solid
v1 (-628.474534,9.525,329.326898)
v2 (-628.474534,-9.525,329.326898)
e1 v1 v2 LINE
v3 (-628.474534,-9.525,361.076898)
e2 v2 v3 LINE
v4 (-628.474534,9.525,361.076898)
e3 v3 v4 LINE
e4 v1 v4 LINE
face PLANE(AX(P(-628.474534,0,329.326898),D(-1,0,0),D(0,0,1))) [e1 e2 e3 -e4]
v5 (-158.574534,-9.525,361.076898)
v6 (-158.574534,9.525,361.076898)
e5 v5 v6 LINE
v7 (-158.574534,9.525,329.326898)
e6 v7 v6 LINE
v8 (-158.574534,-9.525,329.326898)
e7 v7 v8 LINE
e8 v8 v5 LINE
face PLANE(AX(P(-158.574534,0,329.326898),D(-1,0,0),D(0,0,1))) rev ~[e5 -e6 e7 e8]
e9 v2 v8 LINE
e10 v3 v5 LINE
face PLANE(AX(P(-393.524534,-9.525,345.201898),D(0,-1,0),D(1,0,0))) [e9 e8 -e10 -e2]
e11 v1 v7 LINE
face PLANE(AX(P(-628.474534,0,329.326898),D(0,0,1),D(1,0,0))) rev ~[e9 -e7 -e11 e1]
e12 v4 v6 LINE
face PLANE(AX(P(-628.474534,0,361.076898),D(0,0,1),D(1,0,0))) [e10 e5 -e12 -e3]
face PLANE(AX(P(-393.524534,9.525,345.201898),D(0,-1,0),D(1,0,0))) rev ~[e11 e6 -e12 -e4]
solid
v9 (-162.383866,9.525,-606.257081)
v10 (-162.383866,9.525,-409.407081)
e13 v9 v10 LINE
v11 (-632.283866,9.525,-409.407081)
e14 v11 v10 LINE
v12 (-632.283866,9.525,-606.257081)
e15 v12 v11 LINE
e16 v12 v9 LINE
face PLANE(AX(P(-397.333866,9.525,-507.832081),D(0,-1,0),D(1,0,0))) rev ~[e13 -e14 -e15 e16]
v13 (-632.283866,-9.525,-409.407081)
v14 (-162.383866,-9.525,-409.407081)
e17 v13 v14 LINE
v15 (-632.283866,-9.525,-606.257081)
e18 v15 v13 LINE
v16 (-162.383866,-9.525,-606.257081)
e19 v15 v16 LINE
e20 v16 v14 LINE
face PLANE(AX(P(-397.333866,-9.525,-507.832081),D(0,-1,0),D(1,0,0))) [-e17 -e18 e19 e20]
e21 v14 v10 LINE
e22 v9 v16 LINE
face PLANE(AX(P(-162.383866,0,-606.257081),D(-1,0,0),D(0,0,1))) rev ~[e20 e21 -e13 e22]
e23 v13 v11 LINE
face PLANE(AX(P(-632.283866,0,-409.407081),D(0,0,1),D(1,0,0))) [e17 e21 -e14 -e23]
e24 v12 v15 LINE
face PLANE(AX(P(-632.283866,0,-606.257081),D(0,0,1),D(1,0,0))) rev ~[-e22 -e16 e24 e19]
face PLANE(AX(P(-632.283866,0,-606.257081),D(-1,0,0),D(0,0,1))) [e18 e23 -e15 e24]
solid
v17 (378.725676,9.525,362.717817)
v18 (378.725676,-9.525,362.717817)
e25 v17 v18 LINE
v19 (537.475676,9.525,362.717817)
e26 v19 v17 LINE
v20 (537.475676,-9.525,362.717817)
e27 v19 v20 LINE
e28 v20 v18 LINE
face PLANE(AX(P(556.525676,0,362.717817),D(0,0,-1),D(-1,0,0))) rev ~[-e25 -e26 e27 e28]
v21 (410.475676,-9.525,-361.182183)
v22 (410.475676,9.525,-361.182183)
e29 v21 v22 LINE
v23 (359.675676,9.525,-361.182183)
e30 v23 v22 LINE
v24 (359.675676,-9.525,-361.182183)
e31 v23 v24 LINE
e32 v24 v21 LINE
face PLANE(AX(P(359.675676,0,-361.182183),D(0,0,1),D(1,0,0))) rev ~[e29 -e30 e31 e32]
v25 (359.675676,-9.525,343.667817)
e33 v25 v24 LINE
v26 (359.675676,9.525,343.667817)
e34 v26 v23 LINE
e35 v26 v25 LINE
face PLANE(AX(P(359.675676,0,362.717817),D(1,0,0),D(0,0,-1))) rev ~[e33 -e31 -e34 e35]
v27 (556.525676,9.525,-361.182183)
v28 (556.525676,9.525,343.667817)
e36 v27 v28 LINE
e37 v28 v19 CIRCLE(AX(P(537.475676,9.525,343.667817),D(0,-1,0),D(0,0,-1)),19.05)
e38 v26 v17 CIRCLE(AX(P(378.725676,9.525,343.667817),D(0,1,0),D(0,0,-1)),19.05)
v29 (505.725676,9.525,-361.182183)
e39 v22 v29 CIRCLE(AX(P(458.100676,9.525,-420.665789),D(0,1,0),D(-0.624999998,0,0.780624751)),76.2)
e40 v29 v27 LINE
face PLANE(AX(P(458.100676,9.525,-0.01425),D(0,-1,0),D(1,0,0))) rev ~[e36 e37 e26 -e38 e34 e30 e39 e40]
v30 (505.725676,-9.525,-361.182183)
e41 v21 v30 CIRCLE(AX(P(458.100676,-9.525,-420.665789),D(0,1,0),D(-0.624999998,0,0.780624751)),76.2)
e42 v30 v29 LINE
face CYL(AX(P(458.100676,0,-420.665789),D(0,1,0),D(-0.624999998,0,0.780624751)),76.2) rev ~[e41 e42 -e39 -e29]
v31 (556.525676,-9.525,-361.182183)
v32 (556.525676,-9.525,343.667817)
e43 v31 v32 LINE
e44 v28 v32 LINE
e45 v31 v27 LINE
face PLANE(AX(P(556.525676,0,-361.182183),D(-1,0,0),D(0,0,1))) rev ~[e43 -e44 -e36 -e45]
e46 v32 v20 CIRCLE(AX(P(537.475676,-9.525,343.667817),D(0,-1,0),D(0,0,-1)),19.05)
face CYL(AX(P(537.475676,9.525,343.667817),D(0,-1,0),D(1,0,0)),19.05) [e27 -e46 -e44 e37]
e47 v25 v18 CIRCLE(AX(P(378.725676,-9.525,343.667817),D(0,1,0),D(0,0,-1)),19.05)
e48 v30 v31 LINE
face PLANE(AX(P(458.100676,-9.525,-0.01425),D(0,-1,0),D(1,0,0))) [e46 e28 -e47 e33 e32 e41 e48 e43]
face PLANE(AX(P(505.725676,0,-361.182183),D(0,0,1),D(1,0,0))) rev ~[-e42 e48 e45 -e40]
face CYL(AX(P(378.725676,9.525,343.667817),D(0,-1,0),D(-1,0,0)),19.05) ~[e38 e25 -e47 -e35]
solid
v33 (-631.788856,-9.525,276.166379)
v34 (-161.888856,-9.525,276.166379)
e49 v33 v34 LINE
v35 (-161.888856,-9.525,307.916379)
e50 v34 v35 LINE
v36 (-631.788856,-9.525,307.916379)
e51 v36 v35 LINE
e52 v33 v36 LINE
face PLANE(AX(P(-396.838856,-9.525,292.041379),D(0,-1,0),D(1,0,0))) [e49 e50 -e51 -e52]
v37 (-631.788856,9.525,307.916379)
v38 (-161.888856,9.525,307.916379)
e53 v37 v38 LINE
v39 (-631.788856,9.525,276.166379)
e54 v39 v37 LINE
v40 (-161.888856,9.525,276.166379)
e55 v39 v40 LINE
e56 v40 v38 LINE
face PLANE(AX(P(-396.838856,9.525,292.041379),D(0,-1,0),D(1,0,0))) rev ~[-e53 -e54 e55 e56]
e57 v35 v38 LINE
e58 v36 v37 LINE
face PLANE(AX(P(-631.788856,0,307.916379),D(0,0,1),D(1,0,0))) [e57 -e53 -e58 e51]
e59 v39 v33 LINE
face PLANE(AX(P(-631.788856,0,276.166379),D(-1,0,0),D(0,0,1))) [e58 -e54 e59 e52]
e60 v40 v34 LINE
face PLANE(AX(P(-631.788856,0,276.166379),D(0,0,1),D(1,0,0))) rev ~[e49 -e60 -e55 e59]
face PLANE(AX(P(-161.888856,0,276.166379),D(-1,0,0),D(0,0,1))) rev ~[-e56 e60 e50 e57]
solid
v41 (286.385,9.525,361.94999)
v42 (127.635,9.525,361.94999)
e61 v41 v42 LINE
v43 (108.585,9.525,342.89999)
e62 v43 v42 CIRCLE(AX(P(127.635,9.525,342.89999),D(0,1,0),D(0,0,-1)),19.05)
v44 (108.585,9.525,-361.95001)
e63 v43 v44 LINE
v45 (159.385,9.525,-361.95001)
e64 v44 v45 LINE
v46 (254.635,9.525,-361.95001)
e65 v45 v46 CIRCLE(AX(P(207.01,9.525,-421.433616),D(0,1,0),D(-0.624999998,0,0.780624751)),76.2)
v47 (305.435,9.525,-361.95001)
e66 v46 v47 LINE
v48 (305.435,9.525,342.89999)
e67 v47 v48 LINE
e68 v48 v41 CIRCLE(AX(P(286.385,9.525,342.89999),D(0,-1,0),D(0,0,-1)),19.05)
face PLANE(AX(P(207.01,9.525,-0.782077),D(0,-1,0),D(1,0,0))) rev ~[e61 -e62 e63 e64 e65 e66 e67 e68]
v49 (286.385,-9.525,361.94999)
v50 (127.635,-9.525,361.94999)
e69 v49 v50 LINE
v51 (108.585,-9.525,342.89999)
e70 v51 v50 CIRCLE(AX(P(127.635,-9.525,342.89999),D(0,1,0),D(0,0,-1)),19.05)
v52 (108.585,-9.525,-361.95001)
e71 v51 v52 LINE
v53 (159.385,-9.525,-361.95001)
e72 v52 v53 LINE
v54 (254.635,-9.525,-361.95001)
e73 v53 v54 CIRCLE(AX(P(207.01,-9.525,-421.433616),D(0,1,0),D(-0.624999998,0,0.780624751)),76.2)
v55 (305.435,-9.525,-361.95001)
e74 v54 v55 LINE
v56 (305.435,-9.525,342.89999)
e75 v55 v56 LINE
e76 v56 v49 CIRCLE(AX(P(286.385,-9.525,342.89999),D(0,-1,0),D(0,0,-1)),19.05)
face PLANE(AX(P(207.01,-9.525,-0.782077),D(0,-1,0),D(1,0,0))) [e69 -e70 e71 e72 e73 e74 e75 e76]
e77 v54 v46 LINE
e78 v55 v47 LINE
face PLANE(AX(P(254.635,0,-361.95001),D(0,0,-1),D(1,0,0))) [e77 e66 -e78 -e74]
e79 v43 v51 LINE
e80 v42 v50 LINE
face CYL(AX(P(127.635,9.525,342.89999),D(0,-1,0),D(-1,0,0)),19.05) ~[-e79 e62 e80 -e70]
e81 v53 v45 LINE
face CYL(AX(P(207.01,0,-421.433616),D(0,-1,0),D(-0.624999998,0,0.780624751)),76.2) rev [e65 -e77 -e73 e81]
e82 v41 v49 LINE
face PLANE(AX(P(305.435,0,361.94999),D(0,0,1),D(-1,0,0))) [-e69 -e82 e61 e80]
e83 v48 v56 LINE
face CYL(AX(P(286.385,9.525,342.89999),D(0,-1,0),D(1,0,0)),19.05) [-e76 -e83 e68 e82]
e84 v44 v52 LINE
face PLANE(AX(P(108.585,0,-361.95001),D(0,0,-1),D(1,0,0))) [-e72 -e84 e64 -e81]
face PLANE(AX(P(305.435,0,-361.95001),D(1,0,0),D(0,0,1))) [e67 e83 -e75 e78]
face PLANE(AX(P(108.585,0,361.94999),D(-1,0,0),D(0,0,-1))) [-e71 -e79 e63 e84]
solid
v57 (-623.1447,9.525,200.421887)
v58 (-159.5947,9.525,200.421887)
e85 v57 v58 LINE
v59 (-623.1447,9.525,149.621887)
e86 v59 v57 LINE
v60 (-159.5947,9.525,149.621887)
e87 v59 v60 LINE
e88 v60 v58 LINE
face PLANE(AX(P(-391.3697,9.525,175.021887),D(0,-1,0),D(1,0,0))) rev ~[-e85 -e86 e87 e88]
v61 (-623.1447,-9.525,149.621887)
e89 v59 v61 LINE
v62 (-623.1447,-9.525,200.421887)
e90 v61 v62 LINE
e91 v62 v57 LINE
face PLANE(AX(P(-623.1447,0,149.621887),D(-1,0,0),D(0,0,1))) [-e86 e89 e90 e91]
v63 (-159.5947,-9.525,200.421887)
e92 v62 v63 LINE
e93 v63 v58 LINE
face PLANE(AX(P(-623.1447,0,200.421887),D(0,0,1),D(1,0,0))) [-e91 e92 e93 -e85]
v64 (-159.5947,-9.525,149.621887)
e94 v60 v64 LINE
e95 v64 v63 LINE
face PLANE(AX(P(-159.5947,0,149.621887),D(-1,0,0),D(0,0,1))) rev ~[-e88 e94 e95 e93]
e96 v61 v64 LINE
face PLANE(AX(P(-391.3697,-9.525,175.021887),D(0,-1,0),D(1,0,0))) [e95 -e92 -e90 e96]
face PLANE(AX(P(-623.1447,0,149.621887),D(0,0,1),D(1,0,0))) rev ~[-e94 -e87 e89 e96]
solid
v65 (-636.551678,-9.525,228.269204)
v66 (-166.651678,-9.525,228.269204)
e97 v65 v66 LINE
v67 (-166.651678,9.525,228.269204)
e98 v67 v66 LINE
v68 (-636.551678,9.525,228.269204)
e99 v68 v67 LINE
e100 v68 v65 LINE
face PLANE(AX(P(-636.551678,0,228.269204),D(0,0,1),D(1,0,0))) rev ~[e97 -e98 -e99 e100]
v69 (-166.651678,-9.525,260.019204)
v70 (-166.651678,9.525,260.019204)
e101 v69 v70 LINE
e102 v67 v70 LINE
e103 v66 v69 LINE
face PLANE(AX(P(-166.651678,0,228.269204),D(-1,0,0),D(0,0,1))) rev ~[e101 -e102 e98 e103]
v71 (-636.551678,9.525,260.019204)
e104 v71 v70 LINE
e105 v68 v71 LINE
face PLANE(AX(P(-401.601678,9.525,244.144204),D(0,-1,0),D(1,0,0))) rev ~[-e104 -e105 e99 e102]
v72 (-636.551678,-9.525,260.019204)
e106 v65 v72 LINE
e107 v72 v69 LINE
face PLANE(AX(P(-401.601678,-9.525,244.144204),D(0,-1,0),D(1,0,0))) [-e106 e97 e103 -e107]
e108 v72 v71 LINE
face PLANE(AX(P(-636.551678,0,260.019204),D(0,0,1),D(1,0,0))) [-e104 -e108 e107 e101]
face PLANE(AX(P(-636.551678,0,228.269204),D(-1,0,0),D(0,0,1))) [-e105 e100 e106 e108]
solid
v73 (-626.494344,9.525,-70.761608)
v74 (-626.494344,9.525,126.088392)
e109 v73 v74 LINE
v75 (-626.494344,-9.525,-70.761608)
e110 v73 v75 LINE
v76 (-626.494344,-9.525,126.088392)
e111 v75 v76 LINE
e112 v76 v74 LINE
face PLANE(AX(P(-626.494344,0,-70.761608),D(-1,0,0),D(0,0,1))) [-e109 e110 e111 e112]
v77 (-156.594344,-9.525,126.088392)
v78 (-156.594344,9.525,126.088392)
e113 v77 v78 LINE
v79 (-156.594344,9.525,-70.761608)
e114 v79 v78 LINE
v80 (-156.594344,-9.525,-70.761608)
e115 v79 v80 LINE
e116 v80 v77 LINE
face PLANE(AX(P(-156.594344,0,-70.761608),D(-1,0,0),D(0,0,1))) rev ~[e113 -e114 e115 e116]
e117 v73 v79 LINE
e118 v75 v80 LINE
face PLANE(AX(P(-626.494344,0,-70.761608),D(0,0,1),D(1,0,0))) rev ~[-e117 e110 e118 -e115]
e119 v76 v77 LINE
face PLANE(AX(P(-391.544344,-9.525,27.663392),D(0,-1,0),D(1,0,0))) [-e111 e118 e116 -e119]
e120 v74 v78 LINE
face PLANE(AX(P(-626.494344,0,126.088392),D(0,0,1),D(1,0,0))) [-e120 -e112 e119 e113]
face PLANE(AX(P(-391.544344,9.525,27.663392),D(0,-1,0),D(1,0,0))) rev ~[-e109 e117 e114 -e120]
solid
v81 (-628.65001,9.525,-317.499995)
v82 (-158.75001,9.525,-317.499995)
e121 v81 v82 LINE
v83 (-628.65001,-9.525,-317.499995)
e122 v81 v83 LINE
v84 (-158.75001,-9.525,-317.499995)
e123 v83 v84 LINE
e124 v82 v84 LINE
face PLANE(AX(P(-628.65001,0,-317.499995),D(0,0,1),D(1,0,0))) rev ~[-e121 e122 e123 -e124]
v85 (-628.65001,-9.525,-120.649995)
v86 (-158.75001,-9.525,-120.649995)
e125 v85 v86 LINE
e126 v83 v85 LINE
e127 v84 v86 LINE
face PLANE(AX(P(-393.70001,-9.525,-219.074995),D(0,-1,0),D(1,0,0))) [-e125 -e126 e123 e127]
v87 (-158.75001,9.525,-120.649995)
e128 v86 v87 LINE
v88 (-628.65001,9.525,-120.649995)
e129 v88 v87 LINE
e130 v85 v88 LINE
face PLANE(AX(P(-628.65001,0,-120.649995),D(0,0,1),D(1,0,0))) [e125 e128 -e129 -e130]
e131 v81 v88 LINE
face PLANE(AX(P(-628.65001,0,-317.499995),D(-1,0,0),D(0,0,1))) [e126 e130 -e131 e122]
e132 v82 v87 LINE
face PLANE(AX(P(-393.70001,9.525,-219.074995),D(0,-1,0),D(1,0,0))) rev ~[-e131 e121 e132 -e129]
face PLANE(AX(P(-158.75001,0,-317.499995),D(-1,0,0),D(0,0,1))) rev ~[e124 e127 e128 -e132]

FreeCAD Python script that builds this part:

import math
import FreeCAD as App
import Part
import Sketcher
from FreeCAD import Vector
Q = App.Units.Quantity


def edges_at(feature, points):
    """Names of the edges that pass closest to the given points."""
    edges = feature.Shape.Edges
    near = lambda p: min(range(len(edges)), key=lambda i: edges[i].distToShape(Part.Vertex(*p))[0])
    return sorted({f"Edge{near(p) + 1}" for p in points})


def add_polygon(sketch, points):
    """Adds a closed chain of lines whose ends are joined by coincident constraints."""
    first, n = sketch.GeometryCount, len(points)
    for a, b in zip(points, points[1:] + points[:1]):
        sketch.addGeometry(Part.LineSegment(App.Vector(*a, 0), App.Vector(*b, 0)), False)
    for i in range(n):
        sketch.addConstraint(Sketcher.Constraint("Coincident", first + i, 2, first + (i + 1) % n, 1))

doc = App.newDocument("Part")
body = doc.addObject("PartDesign::Body", "Body")
body.AllowCompound = True

# Sketch on XZ plane
sketch1 = doc.addObject("Sketcher::SketchObject", "Sketch")
body.addObject(sketch1)
sketch1.AttachmentSupport = (doc.XZ_Plane, [""])
sketch1.MapMode = "FlatFace"
sketch1.addGeometry(Part.LineSegment(Vector(557, -361, 0), Vector(557, 363, 0)), False)  # 0
sketch1.addGeometry(Part.LineSegment(Vector(557, 363, 0), Vector(360, 363, 0)), False)  # 1
sketch1.addGeometry(Part.LineSegment(Vector(360, 363, 0), Vector(360, -361, 0)), False)  # 2
sketch1.addGeometry(Part.LineSegment(Vector(360, -361, 0), Vector(410, -361, 0)), False)  # 3
sketch1.addGeometry(Part.ArcOfCircle(Part.Circle(Vector(458, -421, 0), Vector(0, 0, 1), 76), math.radians(51), math.radians(129)), False)  # 4
sketch1.addGeometry(Part.LineSegment(Vector(506, -361, 0), Vector(557, -361, 0)), False)  # 5
add_polygon(sketch1, [(-628, 361), (-628, 329), (-159, 329), (-159, 361)])  # lines 6-9
add_polygon(sketch1, [(-632, 308), (-632, 276), (-162, 276), (-162, 308)])  # lines 10-13
add_polygon(sketch1, [(-637, 260), (-637, 228), (-167, 228), (-167, 260)])  # lines 14-17
add_polygon(sketch1, [(-623, 200), (-623, 150), (-160, 150), (-160, 200)])  # lines 18-21
add_polygon(sketch1, [(-626, 126), (-626, -71), (-157, -71), (-157, 126)])  # lines 22-25
add_polygon(sketch1, [(-629, -121), (-629, -317), (-159, -317), (-159, -121)])  # lines 26-29
add_polygon(sketch1, [(-632, -409), (-632, -606), (-162, -606), (-162, -409)])  # lines 30-33
sketch1.addGeometry(Part.LineSegment(Vector(305, -362, 0), Vector(305, 362, 0)), False)  # 34
sketch1.addGeometry(Part.LineSegment(Vector(305, 362, 0), Vector(109, 362, 0)), False)  # 35
sketch1.addGeometry(Part.LineSegment(Vector(109, 362, 0), Vector(109, -362, 0)), False)  # 36
sketch1.addGeometry(Part.LineSegment(Vector(109, -362, 0), Vector(159, -362, 0)), False)  # 37
sketch1.addGeometry(Part.ArcOfCircle(Part.Circle(Vector(207, -421, 0), Vector(0, 0, 1), 76), math.radians(51), math.radians(129)), False)  # 38
sketch1.addGeometry(Part.LineSegment(Vector(255, -362, 0), Vector(305, -362, 0)), False)  # 39
sketch1.addConstraint([
    Sketcher.Constraint("Coincident", 0, 2, 1, 1),
    Sketcher.Constraint("Coincident", 1, 2, 2, 1),
    Sketcher.Constraint("Coincident", 2, 2, 3, 1),
    Sketcher.Constraint("Coincident", 3, 2, 4, 2),
    Sketcher.Constraint("Coincident", 4, 1, 5, 1),
    Sketcher.Constraint("Coincident", 5, 2, 0, 1),
    Sketcher.Constraint("Coincident", 34, 2, 35, 1),
    Sketcher.Constraint("Coincident", 35, 2, 36, 1),
    Sketcher.Constraint("Coincident", 36, 2, 37, 1),
    Sketcher.Constraint("Coincident", 37, 2, 38, 2),
    Sketcher.Constraint("Coincident", 38, 1, 39, 1),
    Sketcher.Constraint("Coincident", 39, 2, 34, 1),
    Sketcher.Constraint("Vertical", 0),
    Sketcher.Constraint("Horizontal", 1),
    Sketcher.Constraint("Vertical", 2),
    Sketcher.Constraint("Horizontal", 3),
    Sketcher.Constraint("Horizontal", 5),
    Sketcher.Constraint("Vertical", 6),
    Sketcher.Constraint("Horizontal", 7),
    Sketcher.Constraint("Vertical", 8),
    Sketcher.Constraint("Horizontal", 9),
    Sketcher.Constraint("Vertical", 10),
    Sketcher.Constraint("Horizontal", 11),
    Sketcher.Constraint("Vertical", 12),
    Sketcher.Constraint("Horizontal", 13),
    Sketcher.Constraint("Vertical", 14),
    Sketcher.Constraint("Horizontal", 15),
    Sketcher.Constraint("Vertical", 16),
    Sketcher.Constraint("Horizontal", 17),
    Sketcher.Constraint("Vertical", 18),
    Sketcher.Constraint("Horizontal", 19),
    Sketcher.Constraint("Vertical", 20),
    Sketcher.Constraint("Horizontal", 21),
    Sketcher.Constraint("Vertical", 22),
    Sketcher.Constraint("Horizontal", 23),
    Sketcher.Constraint("Vertical", 24),
    Sketcher.Constraint("Horizontal", 25),
    Sketcher.Constraint("Vertical", 26),
    Sketcher.Constraint("Horizontal", 27),
    Sketcher.Constraint("Vertical", 28),
    Sketcher.Constraint("Horizontal", 29),
    Sketcher.Constraint("Vertical", 30),
    Sketcher.Constraint("Horizontal", 31),
    Sketcher.Constraint("Vertical", 32),
    Sketcher.Constraint("Horizontal", 33),
    Sketcher.Constraint("Vertical", 34),
    Sketcher.Constraint("Horizontal", 35),
    Sketcher.Constraint("Vertical", 36),
    Sketcher.Constraint("Horizontal", 37),
    Sketcher.Constraint("Horizontal", 39),
    Sketcher.Constraint("Equal", 4, 38),
    Sketcher.Constraint("Horizontal", 3, 2, 4, 1),
    Sketcher.Constraint("Horizontal", 37, 2, 38, 1),
    Sketcher.Constraint("Equal", 3, 5),
    Sketcher.Constraint("Equal", 9, 11),
    Sketcher.Constraint("Equal", 13, 15),
    Sketcher.Constraint("Equal", 17, 23),
    Sketcher.Constraint("Equal", 25, 27),
    Sketcher.Constraint("Equal", 29, 31),
    Sketcher.Constraint("Equal", 1, 35),
    Sketcher.Constraint("Equal", 5, 37),
    Sketcher.Constraint("Equal", 37, 39),
    Sketcher.Constraint("Equal", 8, 10),
    Sketcher.Constraint("Equal", 12, 14),
    Sketcher.Constraint("Equal", 39, 18),
    Sketcher.Constraint("Equal", 35, 22),
    Sketcher.Constraint("Equal", 24, 26),
    Sketcher.Constraint("Equal", 28, 30),
    Sketcher.Constraint("Equal", 2, 34),
    Sketcher.Constraint("Radius", 4, Q("3 in")),
    Sketcher.Constraint("DistanceX", 3, 1, 3, 2, Q("2 in")),
    Sketcher.Constraint("DistanceX", 7, 1, 7, 2, Q("18.5 in")),
    Sketcher.Constraint("DistanceY", 0, 1, 0, 2, Q("28.5 in")),
    Sketcher.Constraint("DistanceX", 1, 2, 1, 1, Q("7.75 in")),
    Sketcher.Constraint("DistanceX", 19, 1, 19, 2, Q("18.25 in")),
    Sketcher.Constraint("DistanceY", 6, 2, 6, 1, Q("1.25 in")),
    Sketcher.Constraint("DistanceY", 26, 2, -1, 1, Q("12.4999998 in")),
    Sketcher.Constraint("DistanceX", -1, 1, 38, 3, Q("8.15 in")),
    Sketcher.Constraint("DistanceY", -1, 1, 6, 2, Q("329.326898 mm")),
    Sketcher.Constraint("DistanceX", 18, 2, -1, 1, Q("623.1447 mm")),
    Sketcher.Constraint("DistanceY", 4, 3, -1, 1, Q("420.665789 mm")),
    Sketcher.Constraint("DistanceY", -1, 1, 10, 2, Q("276.166379 mm")),
    Sketcher.Constraint("DistanceX", 14, 2, -1, 1, Q("636.551678 mm")),
    Sketcher.Constraint("DistanceY", -1, 1, 24, 2, Q("126.088392 mm")),
    Sketcher.Constraint("DistanceX", 26, 2, -1, 1, Q("628.65001 mm")),
    Sketcher.Constraint("DistanceY", 30, 2, -1, 1, Q("606.257081 mm")),
    Sketcher.Constraint("DistanceY", -1, 1, 34, 2, Q("361.94999 mm")),
    Sketcher.Constraint("DistanceX", 6, 2, 1, 2, Q("988.15021 mm")),
    Sketcher.Constraint("DistanceX", 10, 2, 1, 2, Q("991.464532 mm")),
    Sketcher.Constraint("DistanceX", 14, 2, 11, 2, Q("474.662822 mm")),
    Sketcher.Constraint("DistanceY", 18, 2, 6, 2, Q("179.705011 mm")),
    Sketcher.Constraint("DistanceY", 22, 2, 14, 2, Q("299.030812 mm")),
    Sketcher.Constraint("DistanceX", 11, 2, 23, 2, Q("5.294512 mm")),
    Sketcher.Constraint("DistanceX", 30, 2, -1, 1, Q("632.283866 mm")),
])
pad1 = doc.addObject("PartDesign::Pad", "Pad")
body.addObject(pad1)
pad1.Profile = sketch1
pad1.Length = Q("0.75 in")
pad1.Midplane = True
doc.recompute()

fillet = doc.addObject("PartDesign::Fillet", "Fillet")
body.addObject(fillet)
fillet.Base = (pad1, edges_at(pad1, [
    (108.585, 0, 361.95),
    (305.435, 0, 361.95),
    (359.676, 0, 362.718),
    (556.526, 0, 362.718),
]))
fillet.Radius = Q("0.75 in")

doc.recompute()
